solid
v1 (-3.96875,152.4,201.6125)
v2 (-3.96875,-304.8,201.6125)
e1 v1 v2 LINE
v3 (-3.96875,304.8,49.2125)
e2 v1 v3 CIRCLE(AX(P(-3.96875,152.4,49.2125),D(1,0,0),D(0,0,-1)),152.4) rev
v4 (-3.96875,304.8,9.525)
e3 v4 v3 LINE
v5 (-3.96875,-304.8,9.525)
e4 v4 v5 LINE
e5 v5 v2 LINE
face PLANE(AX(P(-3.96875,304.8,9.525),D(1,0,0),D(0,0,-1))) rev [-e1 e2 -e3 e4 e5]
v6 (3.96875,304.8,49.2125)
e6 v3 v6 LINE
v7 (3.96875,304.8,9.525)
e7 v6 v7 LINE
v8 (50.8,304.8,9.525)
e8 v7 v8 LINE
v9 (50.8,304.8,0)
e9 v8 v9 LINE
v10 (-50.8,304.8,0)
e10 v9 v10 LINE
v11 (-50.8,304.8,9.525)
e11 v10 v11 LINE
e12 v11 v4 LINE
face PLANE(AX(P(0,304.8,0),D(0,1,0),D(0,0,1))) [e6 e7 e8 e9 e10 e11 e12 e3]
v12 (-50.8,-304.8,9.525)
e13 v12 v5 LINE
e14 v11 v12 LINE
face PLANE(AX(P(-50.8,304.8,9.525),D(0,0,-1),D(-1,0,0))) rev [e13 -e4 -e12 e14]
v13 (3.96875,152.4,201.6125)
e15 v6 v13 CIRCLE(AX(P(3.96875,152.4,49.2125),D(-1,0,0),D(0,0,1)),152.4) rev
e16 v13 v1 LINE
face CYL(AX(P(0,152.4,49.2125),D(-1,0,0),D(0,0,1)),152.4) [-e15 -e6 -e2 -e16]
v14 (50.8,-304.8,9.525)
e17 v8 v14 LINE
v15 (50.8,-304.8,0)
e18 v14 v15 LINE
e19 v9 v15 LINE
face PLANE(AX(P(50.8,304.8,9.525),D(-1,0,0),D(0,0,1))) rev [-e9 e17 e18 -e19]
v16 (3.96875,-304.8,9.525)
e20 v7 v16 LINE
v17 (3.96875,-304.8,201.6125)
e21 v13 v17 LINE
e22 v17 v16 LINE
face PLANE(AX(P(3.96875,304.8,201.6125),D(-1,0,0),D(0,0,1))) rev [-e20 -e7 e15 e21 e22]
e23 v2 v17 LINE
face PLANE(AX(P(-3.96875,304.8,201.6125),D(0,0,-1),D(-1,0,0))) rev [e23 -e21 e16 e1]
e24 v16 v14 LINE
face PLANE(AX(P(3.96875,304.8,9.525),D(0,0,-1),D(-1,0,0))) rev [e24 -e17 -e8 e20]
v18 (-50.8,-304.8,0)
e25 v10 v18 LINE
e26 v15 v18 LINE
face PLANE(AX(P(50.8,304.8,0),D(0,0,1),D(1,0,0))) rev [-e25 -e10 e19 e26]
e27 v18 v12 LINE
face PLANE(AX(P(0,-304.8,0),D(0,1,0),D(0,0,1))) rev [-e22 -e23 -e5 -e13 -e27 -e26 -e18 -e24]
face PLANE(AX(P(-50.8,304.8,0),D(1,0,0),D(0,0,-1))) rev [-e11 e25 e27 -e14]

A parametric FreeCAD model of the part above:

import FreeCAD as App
import Part
import Sketcher
Q = App.Units.Quantity


def edges_at(feature, points):
    """Names of the edges that pass closest to the given points."""
    edges = feature.Shape.Edges
    near = lambda p: min(range(len(edges)), key=lambda i: edges[i].distToShape(Part.Vertex(*p))[0])
    return sorted({f"Edge{near(p) + 1}" for p in points})

doc = App.newDocument("Part")
body = doc.addObject("PartDesign::Body", "Body")

# Sketch on XZ plane
sketch1 = doc.addObject("Sketcher::SketchObject", "Sketch")
body.addObject(sketch1)
sketch1.AttachmentSupport = (doc.XZ_Plane, [""])
sketch1.MapMode = "FlatFace"
sketch1.addGeometry(Part.LineSegment(App.Vector(51, 0, 0), App.Vector(-51, 0, 0)), False)
sketch1.addGeometry(Part.LineSegment(App.Vector(-51, 0, 0), App.Vector(-51, 10, 0)), False)
sketch1.addGeometry(Part.LineSegment(App.Vector(-51, 10, 0), App.Vector(-4, 10, 0)), False)
sketch1.addGeometry(Part.LineSegment(App.Vector(-4, 10, 0), App.Vector(-4, 202, 0)), False)
sketch1.addGeometry(Part.LineSegment(App.Vector(-4, 202, 0), App.Vector(4, 202, 0)), False)
sketch1.addGeometry(Part.LineSegment(App.Vector(4, 202, 0), App.Vector(4, 10, 0)), False)
sketch1.addGeometry(Part.LineSegment(App.Vector(4, 10, 0), App.Vector(51, 10, 0)), False)
sketch1.addGeometry(Part.LineSegment(App.Vector(51, 10, 0), App.Vector(51, 0, 0)), False)
sketch1.addConstraint(Sketcher.Constraint("Coincident", 0, 2, 1, 1))
sketch1.addConstraint(Sketcher.Constraint("Coincident", 1, 2, 2, 1))
sketch1.addConstraint(Sketcher.Constraint("Coincident", 2, 2, 3, 1))
sketch1.addConstraint(Sketcher.Constraint("Coincident", 3, 2, 4, 1))
sketch1.addConstraint(Sketcher.Constraint("Coincident", 4, 2, 5, 1))
sketch1.addConstraint(Sketcher.Constraint("Coincident", 5, 2, 6, 1))
sketch1.addConstraint(Sketcher.Constraint("Coincident", 6, 2, 7, 1))
sketch1.addConstraint(Sketcher.Constraint("Coincident", 7, 2, 0, 1))
sketch1.addConstraint(Sketcher.Constraint("Horizontal", 0))
sketch1.addConstraint(Sketcher.Constraint("Vertical", 1))
sketch1.addConstraint(Sketcher.Constraint("Horizontal", 2))
sketch1.addConstraint(Sketcher.Constraint("Vertical", 3))
sketch1.addConstraint(Sketcher.Constraint("Horizontal", 4))
sketch1.addConstraint(Sketcher.Constraint("Vertical", 5))
sketch1.addConstraint(Sketcher.Constraint("Horizontal", 6))
sketch1.addConstraint(Sketcher.Constraint("Vertical", 7))
sketch1.addConstraint(Sketcher.Constraint("Symmetric", 0, 2, 7, 2, -1, 1))
sketch1.addConstraint(Sketcher.Constraint("Symmetric", 2, 2, 5, 2, -2))
sketch1.addConstraint(Sketcher.Constraint("DistanceX", 0, 2, 0, 1, Q("4 in")))
sketch1.addConstraint(Sketcher.Constraint("DistanceX", 2, 1, 2, 2, Q("1.84375 in")))
sketch1.addConstraint(Sketcher.Constraint("DistanceY", 1, 1, 1, 2, Q("0.375 in")))
sketch1.addConstraint(Sketcher.Constraint("DistanceY", 3, 1, 3, 2, Q("7.5625 in")))
pad1 = doc.addObject("PartDesign::Pad", "Pad")
body.addObject(pad1)
pad1.Profile = sketch1
pad1.Length = Q("24 in")
pad1.Midplane = True
doc.recompute()

fillet = doc.addObject("PartDesign::Fillet", "Fillet")
body.addObject(fillet)
fillet.Base = (pad1, edges_at(pad1, [(0, 304.8, 201.613)]))
fillet.Radius = Q("6 in")

doc.recompute()
